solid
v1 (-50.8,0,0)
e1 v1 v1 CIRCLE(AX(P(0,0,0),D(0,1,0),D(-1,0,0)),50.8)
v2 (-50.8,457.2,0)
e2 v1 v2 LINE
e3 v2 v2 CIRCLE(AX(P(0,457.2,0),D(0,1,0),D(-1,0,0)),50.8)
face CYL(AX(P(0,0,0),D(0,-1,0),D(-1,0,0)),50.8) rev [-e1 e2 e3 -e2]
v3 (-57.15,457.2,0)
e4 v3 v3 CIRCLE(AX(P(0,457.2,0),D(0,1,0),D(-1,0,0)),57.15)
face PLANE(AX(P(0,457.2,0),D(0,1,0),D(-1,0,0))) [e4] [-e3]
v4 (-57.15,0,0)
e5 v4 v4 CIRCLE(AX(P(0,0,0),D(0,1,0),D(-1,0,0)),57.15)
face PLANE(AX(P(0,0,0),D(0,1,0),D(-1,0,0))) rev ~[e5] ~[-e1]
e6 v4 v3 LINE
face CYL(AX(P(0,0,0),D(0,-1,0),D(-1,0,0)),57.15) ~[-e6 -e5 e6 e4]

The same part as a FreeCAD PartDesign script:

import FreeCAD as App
import Part
import Sketcher
Q = App.Units.Quantity

doc = App.newDocument("Part")
body = doc.addObject("PartDesign::Body", "Body")

# Sketch on XZ plane
sketch1 = body.newObject("Sketcher::SketchObject", "Sketch")
sketch1.AttachmentSupport = (doc.getObject("XZ_Plane"), [""])
sketch1.MapMode = "FlatFace"
sketch1.addGeometry([
    Part.Circle(App.Vector(0, 0, 0), App.Vector(0, 0, 1), 57),
    Part.Circle(App.Vector(0, 0, 0), App.Vector(0, 0, 1), 51),
], False)
sketch1.addConstraint([
    Sketcher.Constraint("Coincident", 0, 3, -1, 1),
    Sketcher.Constraint("Coincident", 1, 3, -1, 1),
    Sketcher.Constraint("Diameter", 1, Q("4 in")),
    Sketcher.Constraint("Diameter", 0, Q("4.5 in")),
])
pad1 = body.newObject("PartDesign::Pad", "Pad")
pad1.Profile = sketch1
pad1.Length = Q("18 in")
pad1.Reversed = True

doc.recompute()
